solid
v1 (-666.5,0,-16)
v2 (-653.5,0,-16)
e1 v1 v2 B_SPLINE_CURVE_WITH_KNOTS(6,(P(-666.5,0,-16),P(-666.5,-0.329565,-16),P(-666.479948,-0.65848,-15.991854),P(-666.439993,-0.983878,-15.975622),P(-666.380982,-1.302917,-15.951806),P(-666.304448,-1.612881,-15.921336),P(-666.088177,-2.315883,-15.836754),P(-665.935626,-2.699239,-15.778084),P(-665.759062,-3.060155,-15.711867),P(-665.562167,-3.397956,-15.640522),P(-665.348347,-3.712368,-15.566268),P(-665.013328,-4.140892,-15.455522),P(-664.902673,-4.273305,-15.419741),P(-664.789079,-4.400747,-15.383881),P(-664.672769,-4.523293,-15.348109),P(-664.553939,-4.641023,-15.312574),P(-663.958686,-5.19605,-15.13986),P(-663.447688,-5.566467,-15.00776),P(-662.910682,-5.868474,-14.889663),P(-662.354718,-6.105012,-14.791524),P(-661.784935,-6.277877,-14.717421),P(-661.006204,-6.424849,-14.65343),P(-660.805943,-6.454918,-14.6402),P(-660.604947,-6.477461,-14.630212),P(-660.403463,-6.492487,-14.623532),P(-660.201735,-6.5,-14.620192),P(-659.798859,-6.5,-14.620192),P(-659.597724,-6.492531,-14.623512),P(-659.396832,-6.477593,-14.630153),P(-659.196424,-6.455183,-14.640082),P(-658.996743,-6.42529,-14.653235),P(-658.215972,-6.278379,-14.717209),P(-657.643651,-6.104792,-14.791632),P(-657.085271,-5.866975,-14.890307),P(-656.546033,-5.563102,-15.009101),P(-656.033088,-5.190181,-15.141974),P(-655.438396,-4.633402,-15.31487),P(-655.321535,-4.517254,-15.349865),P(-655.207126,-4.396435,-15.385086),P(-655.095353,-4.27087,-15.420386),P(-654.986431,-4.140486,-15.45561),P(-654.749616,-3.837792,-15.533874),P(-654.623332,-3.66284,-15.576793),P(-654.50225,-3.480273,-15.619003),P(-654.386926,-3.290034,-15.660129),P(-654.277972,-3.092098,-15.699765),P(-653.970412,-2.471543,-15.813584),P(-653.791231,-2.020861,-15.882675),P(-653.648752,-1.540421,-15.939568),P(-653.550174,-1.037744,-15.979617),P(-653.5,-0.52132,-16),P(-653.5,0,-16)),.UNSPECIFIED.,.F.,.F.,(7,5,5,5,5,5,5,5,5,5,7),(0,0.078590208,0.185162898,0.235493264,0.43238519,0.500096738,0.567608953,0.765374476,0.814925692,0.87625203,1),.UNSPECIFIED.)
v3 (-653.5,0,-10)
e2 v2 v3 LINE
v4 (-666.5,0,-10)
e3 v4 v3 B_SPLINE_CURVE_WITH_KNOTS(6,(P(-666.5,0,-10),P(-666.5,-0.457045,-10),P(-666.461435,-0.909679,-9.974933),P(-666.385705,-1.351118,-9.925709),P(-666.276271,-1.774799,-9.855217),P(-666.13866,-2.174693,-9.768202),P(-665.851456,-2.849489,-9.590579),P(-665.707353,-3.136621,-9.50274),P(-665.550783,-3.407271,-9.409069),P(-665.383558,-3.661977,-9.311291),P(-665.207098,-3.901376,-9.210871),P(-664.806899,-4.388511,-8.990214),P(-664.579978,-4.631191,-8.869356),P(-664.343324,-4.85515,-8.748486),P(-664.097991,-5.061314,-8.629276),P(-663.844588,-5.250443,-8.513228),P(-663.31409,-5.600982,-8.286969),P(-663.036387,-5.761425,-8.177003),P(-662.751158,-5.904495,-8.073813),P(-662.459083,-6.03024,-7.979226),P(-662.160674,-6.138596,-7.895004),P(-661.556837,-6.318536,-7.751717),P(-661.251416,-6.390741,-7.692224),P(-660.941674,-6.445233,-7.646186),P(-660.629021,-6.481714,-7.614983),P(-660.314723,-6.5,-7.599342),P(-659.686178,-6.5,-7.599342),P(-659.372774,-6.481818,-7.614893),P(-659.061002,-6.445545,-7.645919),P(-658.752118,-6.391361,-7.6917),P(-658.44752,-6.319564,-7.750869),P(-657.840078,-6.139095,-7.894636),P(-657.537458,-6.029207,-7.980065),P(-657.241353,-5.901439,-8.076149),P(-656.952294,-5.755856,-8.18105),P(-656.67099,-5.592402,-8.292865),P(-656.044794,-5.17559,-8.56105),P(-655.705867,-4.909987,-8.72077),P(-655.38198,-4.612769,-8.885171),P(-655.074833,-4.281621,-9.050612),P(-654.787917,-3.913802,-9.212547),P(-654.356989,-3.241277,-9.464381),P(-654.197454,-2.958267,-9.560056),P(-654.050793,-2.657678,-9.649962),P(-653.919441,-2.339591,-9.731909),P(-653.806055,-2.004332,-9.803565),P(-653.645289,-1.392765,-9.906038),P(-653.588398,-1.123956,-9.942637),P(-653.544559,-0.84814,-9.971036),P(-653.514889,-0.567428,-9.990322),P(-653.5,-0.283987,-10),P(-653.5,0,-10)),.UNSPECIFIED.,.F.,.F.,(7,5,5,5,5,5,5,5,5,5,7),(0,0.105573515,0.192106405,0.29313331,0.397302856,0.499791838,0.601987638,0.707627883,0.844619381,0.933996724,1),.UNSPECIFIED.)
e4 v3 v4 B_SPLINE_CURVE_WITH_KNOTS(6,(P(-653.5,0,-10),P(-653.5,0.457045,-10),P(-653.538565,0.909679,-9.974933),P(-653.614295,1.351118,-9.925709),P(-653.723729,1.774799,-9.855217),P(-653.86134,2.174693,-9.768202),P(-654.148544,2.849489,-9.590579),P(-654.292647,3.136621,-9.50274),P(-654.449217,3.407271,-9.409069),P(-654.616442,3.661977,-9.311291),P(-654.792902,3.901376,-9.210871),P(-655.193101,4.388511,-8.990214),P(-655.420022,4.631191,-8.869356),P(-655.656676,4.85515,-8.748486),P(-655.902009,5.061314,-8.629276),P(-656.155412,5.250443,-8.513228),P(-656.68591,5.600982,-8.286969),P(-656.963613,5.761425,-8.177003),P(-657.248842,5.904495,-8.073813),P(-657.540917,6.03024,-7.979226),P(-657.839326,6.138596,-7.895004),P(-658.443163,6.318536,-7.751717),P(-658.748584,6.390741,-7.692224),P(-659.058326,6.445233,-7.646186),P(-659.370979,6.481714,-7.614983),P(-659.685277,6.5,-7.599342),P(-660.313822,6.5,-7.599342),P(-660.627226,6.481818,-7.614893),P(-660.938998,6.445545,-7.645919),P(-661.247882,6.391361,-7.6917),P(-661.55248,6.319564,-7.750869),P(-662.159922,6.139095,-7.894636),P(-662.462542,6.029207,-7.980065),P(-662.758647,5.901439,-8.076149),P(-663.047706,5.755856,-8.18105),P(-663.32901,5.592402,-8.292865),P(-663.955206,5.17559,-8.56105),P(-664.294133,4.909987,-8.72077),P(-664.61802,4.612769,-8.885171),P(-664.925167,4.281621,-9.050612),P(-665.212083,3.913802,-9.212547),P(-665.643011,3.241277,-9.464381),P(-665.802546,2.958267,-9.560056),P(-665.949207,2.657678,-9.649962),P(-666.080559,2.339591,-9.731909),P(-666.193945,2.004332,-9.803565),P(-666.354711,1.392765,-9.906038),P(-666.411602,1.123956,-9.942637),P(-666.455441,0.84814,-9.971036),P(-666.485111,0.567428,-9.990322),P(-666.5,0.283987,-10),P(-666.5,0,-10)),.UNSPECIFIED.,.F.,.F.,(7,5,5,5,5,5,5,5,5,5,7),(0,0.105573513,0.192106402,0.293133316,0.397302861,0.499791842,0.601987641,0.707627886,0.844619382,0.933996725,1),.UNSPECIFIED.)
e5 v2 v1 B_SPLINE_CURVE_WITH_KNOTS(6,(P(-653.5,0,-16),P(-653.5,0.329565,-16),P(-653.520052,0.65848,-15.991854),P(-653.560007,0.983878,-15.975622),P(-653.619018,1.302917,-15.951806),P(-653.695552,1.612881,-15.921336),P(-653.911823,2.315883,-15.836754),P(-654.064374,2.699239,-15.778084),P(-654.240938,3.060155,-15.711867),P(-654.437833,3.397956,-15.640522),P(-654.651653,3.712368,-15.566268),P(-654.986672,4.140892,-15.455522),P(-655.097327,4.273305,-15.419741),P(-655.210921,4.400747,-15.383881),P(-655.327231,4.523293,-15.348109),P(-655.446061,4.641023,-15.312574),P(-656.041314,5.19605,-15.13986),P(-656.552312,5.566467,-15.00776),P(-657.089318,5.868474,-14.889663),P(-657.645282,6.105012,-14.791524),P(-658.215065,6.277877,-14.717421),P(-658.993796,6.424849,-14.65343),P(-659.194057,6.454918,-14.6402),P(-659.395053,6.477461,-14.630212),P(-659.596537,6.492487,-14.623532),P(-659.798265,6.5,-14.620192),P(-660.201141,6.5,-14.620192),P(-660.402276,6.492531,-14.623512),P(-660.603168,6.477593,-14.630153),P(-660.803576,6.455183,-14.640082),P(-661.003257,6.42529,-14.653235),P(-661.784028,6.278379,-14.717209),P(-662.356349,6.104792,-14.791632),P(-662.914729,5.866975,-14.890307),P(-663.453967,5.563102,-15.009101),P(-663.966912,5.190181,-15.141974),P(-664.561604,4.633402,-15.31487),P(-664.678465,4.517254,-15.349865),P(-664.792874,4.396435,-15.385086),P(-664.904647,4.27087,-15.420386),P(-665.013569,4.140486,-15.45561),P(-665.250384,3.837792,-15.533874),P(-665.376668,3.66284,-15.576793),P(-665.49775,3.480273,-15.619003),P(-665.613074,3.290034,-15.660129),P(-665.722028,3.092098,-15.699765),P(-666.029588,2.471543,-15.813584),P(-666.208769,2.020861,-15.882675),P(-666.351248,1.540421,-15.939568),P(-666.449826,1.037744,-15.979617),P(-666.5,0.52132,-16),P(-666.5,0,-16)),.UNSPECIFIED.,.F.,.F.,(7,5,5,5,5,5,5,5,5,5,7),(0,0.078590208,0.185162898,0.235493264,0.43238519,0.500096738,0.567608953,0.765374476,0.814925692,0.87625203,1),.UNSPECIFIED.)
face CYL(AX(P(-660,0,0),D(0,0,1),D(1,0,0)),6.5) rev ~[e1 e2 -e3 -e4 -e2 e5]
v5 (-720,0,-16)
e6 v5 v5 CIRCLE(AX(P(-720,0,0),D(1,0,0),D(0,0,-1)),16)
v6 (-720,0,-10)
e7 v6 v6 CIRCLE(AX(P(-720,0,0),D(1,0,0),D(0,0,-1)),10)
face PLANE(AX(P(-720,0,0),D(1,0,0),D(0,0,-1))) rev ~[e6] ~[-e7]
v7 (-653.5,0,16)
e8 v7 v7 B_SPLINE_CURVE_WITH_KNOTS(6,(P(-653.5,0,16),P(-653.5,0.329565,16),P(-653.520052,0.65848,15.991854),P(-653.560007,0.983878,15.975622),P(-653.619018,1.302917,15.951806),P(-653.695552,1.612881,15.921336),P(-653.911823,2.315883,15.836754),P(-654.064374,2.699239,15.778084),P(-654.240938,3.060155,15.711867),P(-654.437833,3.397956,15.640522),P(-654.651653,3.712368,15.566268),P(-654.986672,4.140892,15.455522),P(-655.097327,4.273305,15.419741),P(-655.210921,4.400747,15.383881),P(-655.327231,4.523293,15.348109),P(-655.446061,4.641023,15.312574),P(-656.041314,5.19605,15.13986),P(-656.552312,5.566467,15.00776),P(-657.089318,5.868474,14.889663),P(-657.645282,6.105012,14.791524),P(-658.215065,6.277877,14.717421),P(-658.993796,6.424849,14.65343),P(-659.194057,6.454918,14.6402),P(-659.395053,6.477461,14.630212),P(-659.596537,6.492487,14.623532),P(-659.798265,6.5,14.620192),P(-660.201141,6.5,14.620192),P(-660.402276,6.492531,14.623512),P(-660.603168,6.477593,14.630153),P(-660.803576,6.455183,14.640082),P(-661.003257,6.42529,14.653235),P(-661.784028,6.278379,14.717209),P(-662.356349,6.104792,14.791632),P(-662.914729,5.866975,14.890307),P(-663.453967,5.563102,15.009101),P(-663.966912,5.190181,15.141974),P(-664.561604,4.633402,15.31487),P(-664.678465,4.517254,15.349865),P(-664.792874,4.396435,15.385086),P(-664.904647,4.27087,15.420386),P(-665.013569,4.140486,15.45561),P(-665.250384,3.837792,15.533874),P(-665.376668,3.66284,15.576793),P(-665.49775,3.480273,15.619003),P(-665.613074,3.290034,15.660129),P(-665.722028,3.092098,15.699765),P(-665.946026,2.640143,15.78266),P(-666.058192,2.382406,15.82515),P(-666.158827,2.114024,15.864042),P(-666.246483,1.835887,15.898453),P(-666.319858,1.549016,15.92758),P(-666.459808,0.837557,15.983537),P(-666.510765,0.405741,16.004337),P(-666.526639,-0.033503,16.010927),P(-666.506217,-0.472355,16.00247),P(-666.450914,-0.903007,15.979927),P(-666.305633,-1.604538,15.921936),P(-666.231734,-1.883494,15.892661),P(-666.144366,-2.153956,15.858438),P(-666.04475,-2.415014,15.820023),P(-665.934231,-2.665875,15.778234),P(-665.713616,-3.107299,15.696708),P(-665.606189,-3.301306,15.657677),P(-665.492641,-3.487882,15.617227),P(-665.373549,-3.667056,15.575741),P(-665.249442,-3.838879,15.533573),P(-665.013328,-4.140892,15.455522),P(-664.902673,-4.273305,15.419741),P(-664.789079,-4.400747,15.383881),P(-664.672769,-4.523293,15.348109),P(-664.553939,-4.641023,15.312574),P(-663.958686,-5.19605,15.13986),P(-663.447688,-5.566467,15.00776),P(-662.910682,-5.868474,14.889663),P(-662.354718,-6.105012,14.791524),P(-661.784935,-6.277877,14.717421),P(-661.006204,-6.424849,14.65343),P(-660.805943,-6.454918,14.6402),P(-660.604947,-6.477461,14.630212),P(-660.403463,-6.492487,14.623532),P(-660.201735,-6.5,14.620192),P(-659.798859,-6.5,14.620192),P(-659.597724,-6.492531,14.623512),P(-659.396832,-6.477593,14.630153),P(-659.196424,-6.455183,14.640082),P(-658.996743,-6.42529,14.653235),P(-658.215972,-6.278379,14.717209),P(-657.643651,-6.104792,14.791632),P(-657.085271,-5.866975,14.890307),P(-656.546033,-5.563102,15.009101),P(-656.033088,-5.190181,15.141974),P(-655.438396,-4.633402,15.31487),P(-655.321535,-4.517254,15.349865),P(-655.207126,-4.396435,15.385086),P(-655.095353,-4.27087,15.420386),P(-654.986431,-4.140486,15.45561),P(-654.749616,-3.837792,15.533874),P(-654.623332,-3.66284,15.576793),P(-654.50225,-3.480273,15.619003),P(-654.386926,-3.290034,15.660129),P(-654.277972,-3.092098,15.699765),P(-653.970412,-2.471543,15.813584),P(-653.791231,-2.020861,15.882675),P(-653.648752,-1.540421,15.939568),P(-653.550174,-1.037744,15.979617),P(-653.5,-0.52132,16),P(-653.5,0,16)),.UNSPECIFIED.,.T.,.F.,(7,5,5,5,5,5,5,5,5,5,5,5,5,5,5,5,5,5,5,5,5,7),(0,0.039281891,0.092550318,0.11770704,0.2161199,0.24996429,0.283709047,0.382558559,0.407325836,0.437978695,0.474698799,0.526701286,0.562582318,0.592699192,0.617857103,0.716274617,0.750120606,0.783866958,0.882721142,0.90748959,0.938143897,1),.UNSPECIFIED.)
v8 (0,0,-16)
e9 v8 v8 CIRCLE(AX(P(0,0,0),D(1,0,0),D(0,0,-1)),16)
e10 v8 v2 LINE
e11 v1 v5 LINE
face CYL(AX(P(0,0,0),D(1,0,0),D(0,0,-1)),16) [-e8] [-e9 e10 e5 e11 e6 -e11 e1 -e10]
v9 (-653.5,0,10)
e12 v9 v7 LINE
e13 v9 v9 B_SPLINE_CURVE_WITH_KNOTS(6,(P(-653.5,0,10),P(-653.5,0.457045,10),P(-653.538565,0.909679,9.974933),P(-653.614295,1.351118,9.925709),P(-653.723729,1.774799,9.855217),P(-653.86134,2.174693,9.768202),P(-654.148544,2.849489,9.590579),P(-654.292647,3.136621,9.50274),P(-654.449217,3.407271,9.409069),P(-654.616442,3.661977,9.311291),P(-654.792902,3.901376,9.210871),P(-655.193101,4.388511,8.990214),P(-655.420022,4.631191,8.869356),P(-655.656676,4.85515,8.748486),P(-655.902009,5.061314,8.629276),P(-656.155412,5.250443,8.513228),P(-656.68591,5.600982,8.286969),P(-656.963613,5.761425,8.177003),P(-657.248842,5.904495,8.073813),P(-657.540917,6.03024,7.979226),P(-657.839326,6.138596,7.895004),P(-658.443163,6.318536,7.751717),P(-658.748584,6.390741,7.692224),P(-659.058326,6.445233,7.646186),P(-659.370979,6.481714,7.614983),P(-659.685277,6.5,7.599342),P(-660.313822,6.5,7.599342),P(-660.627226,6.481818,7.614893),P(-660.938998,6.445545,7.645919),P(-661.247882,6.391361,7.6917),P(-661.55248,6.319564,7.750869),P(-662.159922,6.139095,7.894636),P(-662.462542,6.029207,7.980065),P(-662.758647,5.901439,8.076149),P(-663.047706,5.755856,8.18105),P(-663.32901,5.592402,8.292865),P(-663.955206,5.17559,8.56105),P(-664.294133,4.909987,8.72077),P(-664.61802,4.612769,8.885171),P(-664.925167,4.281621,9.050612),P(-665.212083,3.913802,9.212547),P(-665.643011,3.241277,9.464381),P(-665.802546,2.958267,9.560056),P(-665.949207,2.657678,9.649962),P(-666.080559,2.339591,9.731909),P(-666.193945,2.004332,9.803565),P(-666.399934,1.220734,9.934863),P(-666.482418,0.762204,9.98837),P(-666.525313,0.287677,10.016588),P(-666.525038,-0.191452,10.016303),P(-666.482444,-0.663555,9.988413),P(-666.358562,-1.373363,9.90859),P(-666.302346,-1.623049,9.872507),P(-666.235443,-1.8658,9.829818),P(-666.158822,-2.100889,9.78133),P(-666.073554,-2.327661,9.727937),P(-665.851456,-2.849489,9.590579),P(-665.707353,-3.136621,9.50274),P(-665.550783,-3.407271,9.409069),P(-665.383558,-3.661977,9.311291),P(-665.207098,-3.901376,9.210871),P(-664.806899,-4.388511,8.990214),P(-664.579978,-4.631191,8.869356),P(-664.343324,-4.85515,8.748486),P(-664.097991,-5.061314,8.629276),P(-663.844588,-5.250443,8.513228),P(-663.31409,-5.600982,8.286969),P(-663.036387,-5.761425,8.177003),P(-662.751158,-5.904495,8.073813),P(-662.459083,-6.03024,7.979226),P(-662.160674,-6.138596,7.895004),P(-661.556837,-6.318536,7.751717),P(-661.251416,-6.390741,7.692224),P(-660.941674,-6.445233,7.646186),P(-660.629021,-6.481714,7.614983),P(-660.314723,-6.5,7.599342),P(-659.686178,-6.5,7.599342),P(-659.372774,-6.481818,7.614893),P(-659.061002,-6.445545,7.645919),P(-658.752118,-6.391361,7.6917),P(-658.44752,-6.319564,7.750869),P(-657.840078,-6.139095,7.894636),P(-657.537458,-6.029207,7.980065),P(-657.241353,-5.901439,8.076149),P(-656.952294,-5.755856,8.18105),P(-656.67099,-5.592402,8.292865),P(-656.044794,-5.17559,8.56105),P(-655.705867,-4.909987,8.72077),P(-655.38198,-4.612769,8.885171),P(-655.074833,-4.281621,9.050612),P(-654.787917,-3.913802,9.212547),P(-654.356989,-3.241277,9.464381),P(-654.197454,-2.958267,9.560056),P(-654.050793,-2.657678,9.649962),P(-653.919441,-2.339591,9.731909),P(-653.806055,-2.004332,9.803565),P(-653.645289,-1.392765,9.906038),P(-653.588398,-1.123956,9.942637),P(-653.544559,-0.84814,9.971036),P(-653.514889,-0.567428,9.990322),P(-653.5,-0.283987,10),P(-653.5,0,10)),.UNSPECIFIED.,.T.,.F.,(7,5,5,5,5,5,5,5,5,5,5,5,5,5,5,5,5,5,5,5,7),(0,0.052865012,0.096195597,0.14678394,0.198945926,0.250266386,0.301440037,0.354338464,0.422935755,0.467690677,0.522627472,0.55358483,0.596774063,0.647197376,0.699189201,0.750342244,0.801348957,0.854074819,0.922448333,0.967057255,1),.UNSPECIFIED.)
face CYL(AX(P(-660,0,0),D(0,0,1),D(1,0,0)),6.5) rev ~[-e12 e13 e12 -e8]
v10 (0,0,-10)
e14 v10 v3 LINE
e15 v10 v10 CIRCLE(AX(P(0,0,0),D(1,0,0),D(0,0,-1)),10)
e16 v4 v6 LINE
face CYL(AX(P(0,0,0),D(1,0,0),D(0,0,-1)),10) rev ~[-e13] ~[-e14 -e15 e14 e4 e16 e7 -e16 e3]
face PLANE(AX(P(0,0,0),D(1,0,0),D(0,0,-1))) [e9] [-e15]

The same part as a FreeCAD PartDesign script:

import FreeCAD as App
import Part
import Sketcher

V = App.Vector

doc = App.newDocument("Part")
body = doc.addObject("PartDesign::Body", "Body")

# Sketch on YZ plane
sketch1 = body.newObject("Sketcher::SketchObject", "Sketch")
sketch1.AttachmentSupport = (doc.getObject("YZ_Plane"), [""])
sketch1.MapMode = "FlatFace"
sketch1.addGeometry([
    Part.Circle(V(0, 0, 0), V(0, 0, 1), 16),
    Part.Circle(V(0, 0, 0), V(0, 0, 1), 10),
], False)
sketch1.addConstraint([
    Sketcher.Constraint("Coincident", 0, 3, -1, 1),
    Sketcher.Constraint("Coincident", 1, 3, -1, 1),
    Sketcher.Constraint("Diameter", 0, 32.0),
    Sketcher.Constraint("Diameter", 1, 20.0),
])
pad1 = body.newObject("PartDesign::Pad", "Pad")
pad1.Profile = sketch1
pad1.Length = 720
pad1.Reversed = True

# Sketch on XY plane
sketch2 = body.newObject("Sketcher::SketchObject", "Sketch001")
sketch2.AttachmentSupport = (doc.getObject("XY_Plane"), [""])
sketch2.MapMode = "FlatFace"
sketch2.addGeometry(Part.Circle(V(-660, 0, 0), V(0, 0, 1), 6), False)
sketch2.addConstraint([
    Sketcher.Constraint("PointOnObject", 0, 3, -1),
    Sketcher.Constraint("Diameter", 0, 13.0),
    Sketcher.Constraint("DistanceX", 0, 3, -1, 1, 660.0),
])
pocket1 = body.newObject("PartDesign::Pocket", "Pocket")
pocket1.Profile = sketch2
pocket1.Length = 59
pocket1.Midplane = True

doc.recompute()
